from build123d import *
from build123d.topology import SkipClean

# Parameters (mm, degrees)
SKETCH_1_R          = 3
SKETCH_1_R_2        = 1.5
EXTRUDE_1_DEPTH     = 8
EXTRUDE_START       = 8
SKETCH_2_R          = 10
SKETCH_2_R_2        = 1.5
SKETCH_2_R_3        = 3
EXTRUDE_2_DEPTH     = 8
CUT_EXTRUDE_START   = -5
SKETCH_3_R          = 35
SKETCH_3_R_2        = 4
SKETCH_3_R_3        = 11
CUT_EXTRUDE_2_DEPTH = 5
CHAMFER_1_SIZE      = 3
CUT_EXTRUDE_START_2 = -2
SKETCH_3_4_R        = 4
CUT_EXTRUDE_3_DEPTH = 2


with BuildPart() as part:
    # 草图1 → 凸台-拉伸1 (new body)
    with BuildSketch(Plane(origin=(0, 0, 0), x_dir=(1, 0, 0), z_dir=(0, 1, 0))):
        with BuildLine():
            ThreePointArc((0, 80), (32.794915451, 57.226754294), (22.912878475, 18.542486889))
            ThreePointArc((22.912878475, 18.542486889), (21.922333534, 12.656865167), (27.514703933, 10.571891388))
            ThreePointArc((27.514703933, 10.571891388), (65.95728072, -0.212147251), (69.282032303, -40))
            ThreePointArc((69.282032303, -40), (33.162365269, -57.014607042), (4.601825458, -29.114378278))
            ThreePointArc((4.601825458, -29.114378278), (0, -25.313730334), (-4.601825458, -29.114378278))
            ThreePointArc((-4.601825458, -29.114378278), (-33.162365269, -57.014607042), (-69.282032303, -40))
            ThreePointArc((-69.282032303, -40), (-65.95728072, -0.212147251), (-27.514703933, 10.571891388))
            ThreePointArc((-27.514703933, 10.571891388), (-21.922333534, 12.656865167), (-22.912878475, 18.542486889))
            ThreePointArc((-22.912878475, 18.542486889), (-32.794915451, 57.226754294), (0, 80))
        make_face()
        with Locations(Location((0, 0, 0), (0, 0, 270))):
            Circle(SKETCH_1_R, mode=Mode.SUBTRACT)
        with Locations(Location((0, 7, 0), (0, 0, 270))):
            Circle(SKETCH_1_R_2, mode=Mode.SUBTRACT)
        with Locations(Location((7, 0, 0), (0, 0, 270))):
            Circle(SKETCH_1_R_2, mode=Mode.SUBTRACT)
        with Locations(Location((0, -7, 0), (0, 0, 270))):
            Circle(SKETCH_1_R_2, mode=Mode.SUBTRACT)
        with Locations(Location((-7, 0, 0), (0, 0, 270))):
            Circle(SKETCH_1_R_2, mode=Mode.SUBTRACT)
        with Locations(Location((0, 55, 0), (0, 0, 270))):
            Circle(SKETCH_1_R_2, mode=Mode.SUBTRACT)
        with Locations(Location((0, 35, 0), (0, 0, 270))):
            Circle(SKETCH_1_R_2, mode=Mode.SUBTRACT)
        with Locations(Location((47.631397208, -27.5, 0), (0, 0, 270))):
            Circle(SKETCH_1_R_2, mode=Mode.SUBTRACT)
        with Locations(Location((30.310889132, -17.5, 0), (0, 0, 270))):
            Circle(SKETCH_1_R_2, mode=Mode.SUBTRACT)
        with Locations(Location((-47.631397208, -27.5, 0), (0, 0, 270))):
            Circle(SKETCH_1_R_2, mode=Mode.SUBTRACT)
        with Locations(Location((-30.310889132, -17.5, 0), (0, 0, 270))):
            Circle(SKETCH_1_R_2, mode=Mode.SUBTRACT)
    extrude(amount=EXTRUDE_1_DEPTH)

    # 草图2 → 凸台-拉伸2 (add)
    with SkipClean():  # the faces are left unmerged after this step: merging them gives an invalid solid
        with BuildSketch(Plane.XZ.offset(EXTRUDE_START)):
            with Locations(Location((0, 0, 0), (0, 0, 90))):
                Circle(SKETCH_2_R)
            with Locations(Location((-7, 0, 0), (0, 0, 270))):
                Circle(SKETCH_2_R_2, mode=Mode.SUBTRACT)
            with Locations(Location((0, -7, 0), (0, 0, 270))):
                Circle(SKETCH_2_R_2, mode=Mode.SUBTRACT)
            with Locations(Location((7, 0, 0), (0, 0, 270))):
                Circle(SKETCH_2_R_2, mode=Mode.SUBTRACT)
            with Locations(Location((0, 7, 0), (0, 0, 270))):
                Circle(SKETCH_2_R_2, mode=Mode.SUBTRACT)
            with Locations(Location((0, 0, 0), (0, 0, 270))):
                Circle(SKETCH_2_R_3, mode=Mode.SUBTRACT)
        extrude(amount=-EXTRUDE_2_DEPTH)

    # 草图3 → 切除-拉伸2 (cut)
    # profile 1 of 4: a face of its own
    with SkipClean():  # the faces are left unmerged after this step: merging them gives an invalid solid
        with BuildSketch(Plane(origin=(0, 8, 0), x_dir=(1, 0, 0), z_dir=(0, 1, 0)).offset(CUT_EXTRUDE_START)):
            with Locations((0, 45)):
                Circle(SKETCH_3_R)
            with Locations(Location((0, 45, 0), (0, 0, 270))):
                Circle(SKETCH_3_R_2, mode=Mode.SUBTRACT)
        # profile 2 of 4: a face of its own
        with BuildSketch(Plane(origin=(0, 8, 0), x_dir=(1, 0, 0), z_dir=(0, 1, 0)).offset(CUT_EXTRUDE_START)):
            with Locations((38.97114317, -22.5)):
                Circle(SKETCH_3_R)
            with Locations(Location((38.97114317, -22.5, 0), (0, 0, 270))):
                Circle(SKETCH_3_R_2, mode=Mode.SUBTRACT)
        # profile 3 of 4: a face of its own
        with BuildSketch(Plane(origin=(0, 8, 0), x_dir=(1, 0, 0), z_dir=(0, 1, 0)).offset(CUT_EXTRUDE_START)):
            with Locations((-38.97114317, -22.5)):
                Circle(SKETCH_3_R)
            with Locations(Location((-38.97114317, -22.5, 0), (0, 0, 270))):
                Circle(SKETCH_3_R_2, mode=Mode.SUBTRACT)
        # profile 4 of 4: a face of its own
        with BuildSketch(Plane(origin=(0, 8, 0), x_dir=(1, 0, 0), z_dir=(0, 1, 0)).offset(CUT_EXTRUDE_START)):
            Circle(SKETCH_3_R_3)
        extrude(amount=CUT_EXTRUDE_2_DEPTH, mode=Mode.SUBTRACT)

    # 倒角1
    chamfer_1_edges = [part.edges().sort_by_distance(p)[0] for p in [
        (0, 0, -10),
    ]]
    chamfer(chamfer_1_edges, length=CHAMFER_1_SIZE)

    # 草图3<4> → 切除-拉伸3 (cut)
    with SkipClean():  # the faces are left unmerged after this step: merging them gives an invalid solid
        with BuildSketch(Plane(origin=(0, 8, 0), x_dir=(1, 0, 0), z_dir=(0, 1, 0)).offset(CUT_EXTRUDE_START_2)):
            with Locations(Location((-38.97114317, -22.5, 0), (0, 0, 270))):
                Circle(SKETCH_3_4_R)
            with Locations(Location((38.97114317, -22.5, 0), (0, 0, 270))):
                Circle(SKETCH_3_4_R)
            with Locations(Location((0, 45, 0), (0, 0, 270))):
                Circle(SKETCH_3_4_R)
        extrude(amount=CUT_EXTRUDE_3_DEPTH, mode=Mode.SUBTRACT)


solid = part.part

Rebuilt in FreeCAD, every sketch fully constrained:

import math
import FreeCAD as App
import Part
import Sketcher

V = App.Vector


def edges_at(feature, points):
    """Names of the edges that pass closest to the given points."""
    edges = feature.Shape.Edges
    near = lambda p: min(range(len(edges)), key=lambda i: edges[i].distToShape(Part.Vertex(*p))[0])
    return sorted({f"Edge{near(p) + 1}" for p in points})

doc = App.newDocument("Part")
body = doc.addObject("PartDesign::Body", "Body")

# Sketch on XZ plane
sketch1 = body.newObject("Sketcher::SketchObject", "Sketch")
sketch1.AttachmentSupport = (doc.getObject("XZ_Plane"), [""])
sketch1.MapMode = "FlatFace"
sketch1.addGeometry([
    Part.ArcOfCircle(Part.Circle(V(0, -45, 0), V(0, 0, 1), 35), math.radians(-90), math.radians(49)),  # 0
    Part.ArcOfCircle(Part.Circle(V(0, -45, 0), V(0, 0, 1), 35), math.radians(131), math.radians(270)),  # 1
    Part.ArcOfCircle(Part.Circle(V(-26, -15, 0), V(0, 0, 1), 4.7), math.radians(-49), math.radians(109)),  # 2
    Part.ArcOfCircle(Part.Circle(V(-39, 22.5, 0), V(0, 0, 1), 35), math.radians(150), math.radians(289)),  # 3
    Part.ArcOfCircle(Part.Circle(V(-39, 22.5, 0), V(0, 0, 1), 35), math.radians(11), math.radians(150)),  # 4
    Part.ArcOfCircle(Part.Circle(V(0, 30, 0), V(0, 0, 1), 4.7), math.radians(-169), math.radians(-11)),  # 5
    Part.ArcOfCircle(Part.Circle(V(39, 22.5, 0), V(0, 0, 1), 35), math.radians(30), math.radians(169)),  # 6
    Part.ArcOfCircle(Part.Circle(V(39, 22.5, 0), V(0, 0, 1), 35), math.radians(-109), math.radians(30)),  # 7
    Part.ArcOfCircle(Part.Circle(V(26, -15, 0), V(0, 0, 1), 4.7), math.radians(71), math.radians(229)),  # 8
    Part.Circle(V(47.6, 27.5, 0), V(0, 0, 1), 1.5),  # 9
    Part.Circle(V(30.3, 17.5, 0), V(0, 0, 1), 1.5),  # 10
    Part.Circle(V(7, 0, 0), V(0, 0, 1), 1.5),  # 11
    Part.Circle(V(-47.6, 27.5, 0), V(0, 0, 1), 1.5),  # 12
    Part.Circle(V(-30.3, 17.5, 0), V(0, 0, 1), 1.5),  # 13
    Part.Circle(V(0, 7, 0), V(0, 0, 1), 1.5),  # 14
    Part.Circle(V(0, 0, 0), V(0, 0, 1), 3),  # 15
    Part.Circle(V(-7, 0, 0), V(0, 0, 1), 1.5),  # 16
    Part.Circle(V(0, -7, 0), V(0, 0, 1), 1.5),  # 17
    Part.Circle(V(0, -35, 0), V(0, 0, 1), 1.5),  # 18
    Part.Circle(V(0, -55, 0), V(0, 0, 1), 1.5),  # 19
], False)
sketch1.addConstraint([
    Sketcher.Constraint("Tangent", 0, 1, 1, 2),
    Sketcher.Constraint("Tangent", 1, 1, 2, 1),
    Sketcher.Constraint("Tangent", 2, 2, 3, 2),
    Sketcher.Constraint("Tangent", 3, 1, 4, 2),
    Sketcher.Constraint("Tangent", 4, 1, 5, 1),
    Sketcher.Constraint("Tangent", 5, 2, 6, 2),
    Sketcher.Constraint("Tangent", 6, 1, 7, 2),
    Sketcher.Constraint("Tangent", 7, 1, 8, 1),
    Sketcher.Constraint("Tangent", 8, 2, 0, 2),
    Sketcher.Constraint("Coincident", 15, 3, -1, 1),
    Sketcher.Constraint("Equal", 0, 1),
    Sketcher.Constraint("Equal", 1, 3),
    Sketcher.Constraint("Equal", 3, 4),
    Sketcher.Constraint("Equal", 2, 5),
    Sketcher.Constraint("Equal", 4, 6),
    Sketcher.Constraint("Equal", 6, 7),
    Sketcher.Constraint("Equal", 5, 8),
    Sketcher.Constraint("Equal", 9, 10),
    Sketcher.Constraint("Equal", 10, 11),
    Sketcher.Constraint("Equal", 11, 12),
    Sketcher.Constraint("Equal", 12, 13),
    Sketcher.Constraint("Equal", 13, 14),
    Sketcher.Constraint("Equal", 14, 16),
    Sketcher.Constraint("Equal", 16, 17),
    Sketcher.Constraint("Equal", 17, 18),
    Sketcher.Constraint("Equal", 18, 19),
    Sketcher.Constraint("Symmetric", 11, 3, 16, 3, -1, 1),
    Sketcher.Constraint("Symmetric", 14, 3, 17, 3, -1, 1),
    Sketcher.Constraint("Symmetric", 3, 3, 6, 3, -2),
    Sketcher.Constraint("Symmetric", 9, 3, 12, 3, -2),
    Sketcher.Constraint("Symmetric", 10, 3, 13, 3, -2),
    Sketcher.Constraint("PointOnObject", 0, 3, -2),
    Sketcher.Constraint("PointOnObject", 11, 3, -1),
    Sketcher.Constraint("PointOnObject", 14, 3, -2),
    Sketcher.Constraint("PointOnObject", 18, 3, -2),
    Sketcher.Constraint("PointOnObject", 19, 3, -2),
    Sketcher.Constraint("PointOnObject", 0, 1, -2),
    Sketcher.Constraint("Horizontal", 3, 1, 6, 1),
    Sketcher.Constraint("Diameter", 9, 3.0),
    Sketcher.Constraint("Diameter", 15, 6.0),
    Sketcher.Constraint("Radius", 0, 35.0),
    Sketcher.Constraint("DistanceY", 0, 3, -1, 1, 45.0),
    Sketcher.Constraint("DistanceY", 2, 3, -1, 1, 15.0),
    Sketcher.Constraint("DistanceY", -1, 1, 5, 3, 30.0),
    Sketcher.Constraint("DistanceX", -1, 1, 11, 3, 7.0),
    Sketcher.Constraint("DistanceY", -1, 1, 14, 3, 7.0),
    Sketcher.Constraint("DistanceY", 18, 3, -1, 1, 35.0),
    Sketcher.Constraint("DistanceY", 19, 3, -1, 1, 55.0),
    Sketcher.Constraint("DistanceY", -1, 1, 3, 1, 40.0),
    Sketcher.Constraint("DistanceY", 7, 3, 9, 3, 5.0),
    Sketcher.Constraint("DistanceY", 10, 3, 6, 3, 5.0),
    Sketcher.Constraint("DistanceY", -1, 1, 3, 3, 22.5),
    Sketcher.Constraint("DistanceX", -1, 1, 10, 3, 30.310889),
    Sketcher.Constraint("DistanceX", 2, 3, 9, 3, 73.612159),
])
pad1 = body.newObject("PartDesign::Pad", "Pad")
pad1.Profile = sketch1
pad1.Length = 8
pad1.Reversed = True

# Sketch on XZ plane
sketch2 = body.newObject("Sketcher::SketchObject", "Sketch001")
sketch2.AttachmentSupport = (doc.getObject("XZ_Plane"), [""])
sketch2.MapMode = "FlatFace"
sketch2.AttachmentOffset = App.Placement(V(0, 0, 8), App.Rotation())
sketch2.addGeometry([
    Part.Circle(V(0, 0, 0), V(0, 0, 1), 10),  # 0
    Part.Circle(V(0, -7, 0), V(0, 0, 1), 1.5),  # 1
    Part.Circle(V(7, 0, 0), V(0, 0, 1), 1.5),  # 2
    Part.Circle(V(-7, 0, 0), V(0, 0, 1), 1.5),  # 3
    Part.Circle(V(0, 0, 0), V(0, 0, 1), 3),  # 4
    Part.Circle(V(0, 7, 0), V(0, 0, 1), 1.5),  # 5
], False)
sketch2.addConstraint([
    Sketcher.Constraint("Coincident", 0, 3, -1, 1),
    Sketcher.Constraint("Coincident", 4, 3, -1, 1),
    Sketcher.Constraint("Equal", 1, 2),
    Sketcher.Constraint("Equal", 2, 3),
    Sketcher.Constraint("Equal", 3, 5),
    Sketcher.Constraint("Symmetric", 2, 3, 3, 3, -1, 1),
    Sketcher.Constraint("Symmetric", 1, 3, 5, 3, -1, 1),
    Sketcher.Constraint("PointOnObject", 1, 3, -2),
    Sketcher.Constraint("PointOnObject", 2, 3, -1),
    Sketcher.Constraint("Diameter", 0, 20.0),
    Sketcher.Constraint("Diameter", 1, 3.0),
    Sketcher.Constraint("Diameter", 4, 6.0),
    Sketcher.Constraint("DistanceY", 1, 3, -1, 1, 7.0),
    Sketcher.Constraint("DistanceX", -1, 1, 2, 3, 7.0),
])
pad2 = body.newObject("PartDesign::Pad", "Pad001")
pad2.Profile = sketch2
pad2.Length = 8
pad2.Reversed = True

# Sketch on XZ plane
sketch3 = body.newObject("Sketcher::SketchObject", "Sketch002")
sketch3.AttachmentSupport = (doc.getObject("XZ_Plane"), [""])
sketch3.MapMode = "FlatFace"
sketch3.AttachmentOffset = App.Placement(V(0, 0, -3), App.Rotation())
sketch3.addGeometry([
    Part.ArcOfCircle(Part.Circle(V(0, -45, 0), V(0, 0, 1), 35), math.radians(97), math.radians(443)),  # 0
    Part.ArcOfCircle(Part.Circle(V(0, 0, 0), V(0, 0, 1), 11), math.radians(172), math.radians(248)),  # 1
    Part.ArcOfCircle(Part.Circle(V(-39, 22.5, 0), V(0, 0, 1), 35), math.radians(-23), math.radians(323)),  # 2
    Part.ArcOfCircle(Part.Circle(V(0, 0, 0), V(0, 0, 1), 11), math.radians(52), math.radians(128)),  # 3
    Part.ArcOfCircle(Part.Circle(V(39, 22.5, 0), V(0, 0, 1), 35), math.radians(-143), math.radians(203)),  # 4
    Part.ArcOfCircle(Part.Circle(V(0, 0, 0), V(0, 0, 1), 11), math.radians(-68), math.radians(8)),  # 5
    Part.Circle(V(0, -45, 0), V(0, 0, 1), 4),  # 6
    Part.Circle(V(39, 22.5, 0), V(0, 0, 1), 4),  # 7
    Part.Circle(V(-39, 22.5, 0), V(0, 0, 1), 4),  # 8
], False)
sketch3.addConstraint([
    Sketcher.Constraint("Coincident", 0, 1, 1, 2),
    Sketcher.Constraint("Coincident", 1, 1, 2, 2),
    Sketcher.Constraint("Coincident", 2, 1, 3, 2),
    Sketcher.Constraint("Coincident", 3, 1, 4, 2),
    Sketcher.Constraint("Coincident", 4, 1, 5, 2),
    Sketcher.Constraint("Coincident", 5, 1, 0, 2),
    Sketcher.Constraint("Coincident", 1, 3, -1, 1),
    Sketcher.Constraint("Coincident", 3, 3, -1, 1),
    Sketcher.Constraint("Coincident", 5, 3, -1, 1),
    Sketcher.Constraint("Coincident", 6, 3, 0, 3),
    Sketcher.Constraint("Coincident", 7, 3, 4, 3),
    Sketcher.Constraint("Coincident", 8, 3, 2, 3),
    Sketcher.Constraint("Equal", 0, 2),
    Sketcher.Constraint("Equal", 1, 3),
    Sketcher.Constraint("Equal", 2, 4),
    Sketcher.Constraint("Equal", 3, 5),
    Sketcher.Constraint("Equal", 6, 7),
    Sketcher.Constraint("Equal", 7, 8),
    Sketcher.Constraint("Symmetric", 2, 3, 4, 3, -2),
    Sketcher.Constraint("PointOnObject", 0, 3, -2),
    Sketcher.Constraint("Diameter", 6, 8.0),
    Sketcher.Constraint("Radius", 0, 35.0),
    Sketcher.Constraint("Radius", 1, 11.0),
    Sketcher.Constraint("DistanceY", 0, 3, -1, 1, 45.0),
    Sketcher.Constraint("DistanceY", -1, 1, 2, 3, 22.5),
    Sketcher.Constraint("DistanceX", 1, 1, -1, 1, 10.879682),
])
pocket1 = body.newObject("PartDesign::Pocket", "Pocket")
pocket1.Profile = sketch3
pocket1.Length = 5
doc.recompute()

chamfer = body.newObject("PartDesign::Chamfer", "Chamfer")
chamfer.Base = (pocket1, edges_at(pocket1, [(0, 0, -10)]))
chamfer.Size = 3

# Sketch on XZ plane
sketch4 = body.newObject("Sketcher::SketchObject", "Sketch003")
sketch4.AttachmentSupport = (doc.getObject("XZ_Plane"), [""])
sketch4.MapMode = "FlatFace"
sketch4.AttachmentOffset = App.Placement(V(0, 0, -6), App.Rotation())
sketch4.addGeometry([
    Part.Circle(V(-39, 22.5, 0), V(0, 0, 1), 4),
    Part.Circle(V(39, 22.5, 0), V(0, 0, 1), 4),
    Part.Circle(V(0, -45, 0), V(0, 0, 1), 4),
], False)
sketch4.addConstraint([
    Sketcher.Constraint("Equal", 0, 1),
    Sketcher.Constraint("Equal", 1, 2),
    Sketcher.Constraint("Symmetric", 0, 3, 1, 3, -2),
    Sketcher.Constraint("PointOnObject", 2, 3, -2),
    Sketcher.Constraint("Diameter", 0, 8.0),
    Sketcher.Constraint("DistanceY", 2, 3, -1, 1, 45.0),
    Sketcher.Constraint("DistanceY", -1, 1, 0, 3, 22.5),
    Sketcher.Constraint("DistanceX", 0, 3, -1, 1, 38.971143),
])
pocket2 = body.newObject("PartDesign::Pocket", "Pocket001")
pocket2.Profile = sketch4
pocket2.Length = 2

doc.recompute()
